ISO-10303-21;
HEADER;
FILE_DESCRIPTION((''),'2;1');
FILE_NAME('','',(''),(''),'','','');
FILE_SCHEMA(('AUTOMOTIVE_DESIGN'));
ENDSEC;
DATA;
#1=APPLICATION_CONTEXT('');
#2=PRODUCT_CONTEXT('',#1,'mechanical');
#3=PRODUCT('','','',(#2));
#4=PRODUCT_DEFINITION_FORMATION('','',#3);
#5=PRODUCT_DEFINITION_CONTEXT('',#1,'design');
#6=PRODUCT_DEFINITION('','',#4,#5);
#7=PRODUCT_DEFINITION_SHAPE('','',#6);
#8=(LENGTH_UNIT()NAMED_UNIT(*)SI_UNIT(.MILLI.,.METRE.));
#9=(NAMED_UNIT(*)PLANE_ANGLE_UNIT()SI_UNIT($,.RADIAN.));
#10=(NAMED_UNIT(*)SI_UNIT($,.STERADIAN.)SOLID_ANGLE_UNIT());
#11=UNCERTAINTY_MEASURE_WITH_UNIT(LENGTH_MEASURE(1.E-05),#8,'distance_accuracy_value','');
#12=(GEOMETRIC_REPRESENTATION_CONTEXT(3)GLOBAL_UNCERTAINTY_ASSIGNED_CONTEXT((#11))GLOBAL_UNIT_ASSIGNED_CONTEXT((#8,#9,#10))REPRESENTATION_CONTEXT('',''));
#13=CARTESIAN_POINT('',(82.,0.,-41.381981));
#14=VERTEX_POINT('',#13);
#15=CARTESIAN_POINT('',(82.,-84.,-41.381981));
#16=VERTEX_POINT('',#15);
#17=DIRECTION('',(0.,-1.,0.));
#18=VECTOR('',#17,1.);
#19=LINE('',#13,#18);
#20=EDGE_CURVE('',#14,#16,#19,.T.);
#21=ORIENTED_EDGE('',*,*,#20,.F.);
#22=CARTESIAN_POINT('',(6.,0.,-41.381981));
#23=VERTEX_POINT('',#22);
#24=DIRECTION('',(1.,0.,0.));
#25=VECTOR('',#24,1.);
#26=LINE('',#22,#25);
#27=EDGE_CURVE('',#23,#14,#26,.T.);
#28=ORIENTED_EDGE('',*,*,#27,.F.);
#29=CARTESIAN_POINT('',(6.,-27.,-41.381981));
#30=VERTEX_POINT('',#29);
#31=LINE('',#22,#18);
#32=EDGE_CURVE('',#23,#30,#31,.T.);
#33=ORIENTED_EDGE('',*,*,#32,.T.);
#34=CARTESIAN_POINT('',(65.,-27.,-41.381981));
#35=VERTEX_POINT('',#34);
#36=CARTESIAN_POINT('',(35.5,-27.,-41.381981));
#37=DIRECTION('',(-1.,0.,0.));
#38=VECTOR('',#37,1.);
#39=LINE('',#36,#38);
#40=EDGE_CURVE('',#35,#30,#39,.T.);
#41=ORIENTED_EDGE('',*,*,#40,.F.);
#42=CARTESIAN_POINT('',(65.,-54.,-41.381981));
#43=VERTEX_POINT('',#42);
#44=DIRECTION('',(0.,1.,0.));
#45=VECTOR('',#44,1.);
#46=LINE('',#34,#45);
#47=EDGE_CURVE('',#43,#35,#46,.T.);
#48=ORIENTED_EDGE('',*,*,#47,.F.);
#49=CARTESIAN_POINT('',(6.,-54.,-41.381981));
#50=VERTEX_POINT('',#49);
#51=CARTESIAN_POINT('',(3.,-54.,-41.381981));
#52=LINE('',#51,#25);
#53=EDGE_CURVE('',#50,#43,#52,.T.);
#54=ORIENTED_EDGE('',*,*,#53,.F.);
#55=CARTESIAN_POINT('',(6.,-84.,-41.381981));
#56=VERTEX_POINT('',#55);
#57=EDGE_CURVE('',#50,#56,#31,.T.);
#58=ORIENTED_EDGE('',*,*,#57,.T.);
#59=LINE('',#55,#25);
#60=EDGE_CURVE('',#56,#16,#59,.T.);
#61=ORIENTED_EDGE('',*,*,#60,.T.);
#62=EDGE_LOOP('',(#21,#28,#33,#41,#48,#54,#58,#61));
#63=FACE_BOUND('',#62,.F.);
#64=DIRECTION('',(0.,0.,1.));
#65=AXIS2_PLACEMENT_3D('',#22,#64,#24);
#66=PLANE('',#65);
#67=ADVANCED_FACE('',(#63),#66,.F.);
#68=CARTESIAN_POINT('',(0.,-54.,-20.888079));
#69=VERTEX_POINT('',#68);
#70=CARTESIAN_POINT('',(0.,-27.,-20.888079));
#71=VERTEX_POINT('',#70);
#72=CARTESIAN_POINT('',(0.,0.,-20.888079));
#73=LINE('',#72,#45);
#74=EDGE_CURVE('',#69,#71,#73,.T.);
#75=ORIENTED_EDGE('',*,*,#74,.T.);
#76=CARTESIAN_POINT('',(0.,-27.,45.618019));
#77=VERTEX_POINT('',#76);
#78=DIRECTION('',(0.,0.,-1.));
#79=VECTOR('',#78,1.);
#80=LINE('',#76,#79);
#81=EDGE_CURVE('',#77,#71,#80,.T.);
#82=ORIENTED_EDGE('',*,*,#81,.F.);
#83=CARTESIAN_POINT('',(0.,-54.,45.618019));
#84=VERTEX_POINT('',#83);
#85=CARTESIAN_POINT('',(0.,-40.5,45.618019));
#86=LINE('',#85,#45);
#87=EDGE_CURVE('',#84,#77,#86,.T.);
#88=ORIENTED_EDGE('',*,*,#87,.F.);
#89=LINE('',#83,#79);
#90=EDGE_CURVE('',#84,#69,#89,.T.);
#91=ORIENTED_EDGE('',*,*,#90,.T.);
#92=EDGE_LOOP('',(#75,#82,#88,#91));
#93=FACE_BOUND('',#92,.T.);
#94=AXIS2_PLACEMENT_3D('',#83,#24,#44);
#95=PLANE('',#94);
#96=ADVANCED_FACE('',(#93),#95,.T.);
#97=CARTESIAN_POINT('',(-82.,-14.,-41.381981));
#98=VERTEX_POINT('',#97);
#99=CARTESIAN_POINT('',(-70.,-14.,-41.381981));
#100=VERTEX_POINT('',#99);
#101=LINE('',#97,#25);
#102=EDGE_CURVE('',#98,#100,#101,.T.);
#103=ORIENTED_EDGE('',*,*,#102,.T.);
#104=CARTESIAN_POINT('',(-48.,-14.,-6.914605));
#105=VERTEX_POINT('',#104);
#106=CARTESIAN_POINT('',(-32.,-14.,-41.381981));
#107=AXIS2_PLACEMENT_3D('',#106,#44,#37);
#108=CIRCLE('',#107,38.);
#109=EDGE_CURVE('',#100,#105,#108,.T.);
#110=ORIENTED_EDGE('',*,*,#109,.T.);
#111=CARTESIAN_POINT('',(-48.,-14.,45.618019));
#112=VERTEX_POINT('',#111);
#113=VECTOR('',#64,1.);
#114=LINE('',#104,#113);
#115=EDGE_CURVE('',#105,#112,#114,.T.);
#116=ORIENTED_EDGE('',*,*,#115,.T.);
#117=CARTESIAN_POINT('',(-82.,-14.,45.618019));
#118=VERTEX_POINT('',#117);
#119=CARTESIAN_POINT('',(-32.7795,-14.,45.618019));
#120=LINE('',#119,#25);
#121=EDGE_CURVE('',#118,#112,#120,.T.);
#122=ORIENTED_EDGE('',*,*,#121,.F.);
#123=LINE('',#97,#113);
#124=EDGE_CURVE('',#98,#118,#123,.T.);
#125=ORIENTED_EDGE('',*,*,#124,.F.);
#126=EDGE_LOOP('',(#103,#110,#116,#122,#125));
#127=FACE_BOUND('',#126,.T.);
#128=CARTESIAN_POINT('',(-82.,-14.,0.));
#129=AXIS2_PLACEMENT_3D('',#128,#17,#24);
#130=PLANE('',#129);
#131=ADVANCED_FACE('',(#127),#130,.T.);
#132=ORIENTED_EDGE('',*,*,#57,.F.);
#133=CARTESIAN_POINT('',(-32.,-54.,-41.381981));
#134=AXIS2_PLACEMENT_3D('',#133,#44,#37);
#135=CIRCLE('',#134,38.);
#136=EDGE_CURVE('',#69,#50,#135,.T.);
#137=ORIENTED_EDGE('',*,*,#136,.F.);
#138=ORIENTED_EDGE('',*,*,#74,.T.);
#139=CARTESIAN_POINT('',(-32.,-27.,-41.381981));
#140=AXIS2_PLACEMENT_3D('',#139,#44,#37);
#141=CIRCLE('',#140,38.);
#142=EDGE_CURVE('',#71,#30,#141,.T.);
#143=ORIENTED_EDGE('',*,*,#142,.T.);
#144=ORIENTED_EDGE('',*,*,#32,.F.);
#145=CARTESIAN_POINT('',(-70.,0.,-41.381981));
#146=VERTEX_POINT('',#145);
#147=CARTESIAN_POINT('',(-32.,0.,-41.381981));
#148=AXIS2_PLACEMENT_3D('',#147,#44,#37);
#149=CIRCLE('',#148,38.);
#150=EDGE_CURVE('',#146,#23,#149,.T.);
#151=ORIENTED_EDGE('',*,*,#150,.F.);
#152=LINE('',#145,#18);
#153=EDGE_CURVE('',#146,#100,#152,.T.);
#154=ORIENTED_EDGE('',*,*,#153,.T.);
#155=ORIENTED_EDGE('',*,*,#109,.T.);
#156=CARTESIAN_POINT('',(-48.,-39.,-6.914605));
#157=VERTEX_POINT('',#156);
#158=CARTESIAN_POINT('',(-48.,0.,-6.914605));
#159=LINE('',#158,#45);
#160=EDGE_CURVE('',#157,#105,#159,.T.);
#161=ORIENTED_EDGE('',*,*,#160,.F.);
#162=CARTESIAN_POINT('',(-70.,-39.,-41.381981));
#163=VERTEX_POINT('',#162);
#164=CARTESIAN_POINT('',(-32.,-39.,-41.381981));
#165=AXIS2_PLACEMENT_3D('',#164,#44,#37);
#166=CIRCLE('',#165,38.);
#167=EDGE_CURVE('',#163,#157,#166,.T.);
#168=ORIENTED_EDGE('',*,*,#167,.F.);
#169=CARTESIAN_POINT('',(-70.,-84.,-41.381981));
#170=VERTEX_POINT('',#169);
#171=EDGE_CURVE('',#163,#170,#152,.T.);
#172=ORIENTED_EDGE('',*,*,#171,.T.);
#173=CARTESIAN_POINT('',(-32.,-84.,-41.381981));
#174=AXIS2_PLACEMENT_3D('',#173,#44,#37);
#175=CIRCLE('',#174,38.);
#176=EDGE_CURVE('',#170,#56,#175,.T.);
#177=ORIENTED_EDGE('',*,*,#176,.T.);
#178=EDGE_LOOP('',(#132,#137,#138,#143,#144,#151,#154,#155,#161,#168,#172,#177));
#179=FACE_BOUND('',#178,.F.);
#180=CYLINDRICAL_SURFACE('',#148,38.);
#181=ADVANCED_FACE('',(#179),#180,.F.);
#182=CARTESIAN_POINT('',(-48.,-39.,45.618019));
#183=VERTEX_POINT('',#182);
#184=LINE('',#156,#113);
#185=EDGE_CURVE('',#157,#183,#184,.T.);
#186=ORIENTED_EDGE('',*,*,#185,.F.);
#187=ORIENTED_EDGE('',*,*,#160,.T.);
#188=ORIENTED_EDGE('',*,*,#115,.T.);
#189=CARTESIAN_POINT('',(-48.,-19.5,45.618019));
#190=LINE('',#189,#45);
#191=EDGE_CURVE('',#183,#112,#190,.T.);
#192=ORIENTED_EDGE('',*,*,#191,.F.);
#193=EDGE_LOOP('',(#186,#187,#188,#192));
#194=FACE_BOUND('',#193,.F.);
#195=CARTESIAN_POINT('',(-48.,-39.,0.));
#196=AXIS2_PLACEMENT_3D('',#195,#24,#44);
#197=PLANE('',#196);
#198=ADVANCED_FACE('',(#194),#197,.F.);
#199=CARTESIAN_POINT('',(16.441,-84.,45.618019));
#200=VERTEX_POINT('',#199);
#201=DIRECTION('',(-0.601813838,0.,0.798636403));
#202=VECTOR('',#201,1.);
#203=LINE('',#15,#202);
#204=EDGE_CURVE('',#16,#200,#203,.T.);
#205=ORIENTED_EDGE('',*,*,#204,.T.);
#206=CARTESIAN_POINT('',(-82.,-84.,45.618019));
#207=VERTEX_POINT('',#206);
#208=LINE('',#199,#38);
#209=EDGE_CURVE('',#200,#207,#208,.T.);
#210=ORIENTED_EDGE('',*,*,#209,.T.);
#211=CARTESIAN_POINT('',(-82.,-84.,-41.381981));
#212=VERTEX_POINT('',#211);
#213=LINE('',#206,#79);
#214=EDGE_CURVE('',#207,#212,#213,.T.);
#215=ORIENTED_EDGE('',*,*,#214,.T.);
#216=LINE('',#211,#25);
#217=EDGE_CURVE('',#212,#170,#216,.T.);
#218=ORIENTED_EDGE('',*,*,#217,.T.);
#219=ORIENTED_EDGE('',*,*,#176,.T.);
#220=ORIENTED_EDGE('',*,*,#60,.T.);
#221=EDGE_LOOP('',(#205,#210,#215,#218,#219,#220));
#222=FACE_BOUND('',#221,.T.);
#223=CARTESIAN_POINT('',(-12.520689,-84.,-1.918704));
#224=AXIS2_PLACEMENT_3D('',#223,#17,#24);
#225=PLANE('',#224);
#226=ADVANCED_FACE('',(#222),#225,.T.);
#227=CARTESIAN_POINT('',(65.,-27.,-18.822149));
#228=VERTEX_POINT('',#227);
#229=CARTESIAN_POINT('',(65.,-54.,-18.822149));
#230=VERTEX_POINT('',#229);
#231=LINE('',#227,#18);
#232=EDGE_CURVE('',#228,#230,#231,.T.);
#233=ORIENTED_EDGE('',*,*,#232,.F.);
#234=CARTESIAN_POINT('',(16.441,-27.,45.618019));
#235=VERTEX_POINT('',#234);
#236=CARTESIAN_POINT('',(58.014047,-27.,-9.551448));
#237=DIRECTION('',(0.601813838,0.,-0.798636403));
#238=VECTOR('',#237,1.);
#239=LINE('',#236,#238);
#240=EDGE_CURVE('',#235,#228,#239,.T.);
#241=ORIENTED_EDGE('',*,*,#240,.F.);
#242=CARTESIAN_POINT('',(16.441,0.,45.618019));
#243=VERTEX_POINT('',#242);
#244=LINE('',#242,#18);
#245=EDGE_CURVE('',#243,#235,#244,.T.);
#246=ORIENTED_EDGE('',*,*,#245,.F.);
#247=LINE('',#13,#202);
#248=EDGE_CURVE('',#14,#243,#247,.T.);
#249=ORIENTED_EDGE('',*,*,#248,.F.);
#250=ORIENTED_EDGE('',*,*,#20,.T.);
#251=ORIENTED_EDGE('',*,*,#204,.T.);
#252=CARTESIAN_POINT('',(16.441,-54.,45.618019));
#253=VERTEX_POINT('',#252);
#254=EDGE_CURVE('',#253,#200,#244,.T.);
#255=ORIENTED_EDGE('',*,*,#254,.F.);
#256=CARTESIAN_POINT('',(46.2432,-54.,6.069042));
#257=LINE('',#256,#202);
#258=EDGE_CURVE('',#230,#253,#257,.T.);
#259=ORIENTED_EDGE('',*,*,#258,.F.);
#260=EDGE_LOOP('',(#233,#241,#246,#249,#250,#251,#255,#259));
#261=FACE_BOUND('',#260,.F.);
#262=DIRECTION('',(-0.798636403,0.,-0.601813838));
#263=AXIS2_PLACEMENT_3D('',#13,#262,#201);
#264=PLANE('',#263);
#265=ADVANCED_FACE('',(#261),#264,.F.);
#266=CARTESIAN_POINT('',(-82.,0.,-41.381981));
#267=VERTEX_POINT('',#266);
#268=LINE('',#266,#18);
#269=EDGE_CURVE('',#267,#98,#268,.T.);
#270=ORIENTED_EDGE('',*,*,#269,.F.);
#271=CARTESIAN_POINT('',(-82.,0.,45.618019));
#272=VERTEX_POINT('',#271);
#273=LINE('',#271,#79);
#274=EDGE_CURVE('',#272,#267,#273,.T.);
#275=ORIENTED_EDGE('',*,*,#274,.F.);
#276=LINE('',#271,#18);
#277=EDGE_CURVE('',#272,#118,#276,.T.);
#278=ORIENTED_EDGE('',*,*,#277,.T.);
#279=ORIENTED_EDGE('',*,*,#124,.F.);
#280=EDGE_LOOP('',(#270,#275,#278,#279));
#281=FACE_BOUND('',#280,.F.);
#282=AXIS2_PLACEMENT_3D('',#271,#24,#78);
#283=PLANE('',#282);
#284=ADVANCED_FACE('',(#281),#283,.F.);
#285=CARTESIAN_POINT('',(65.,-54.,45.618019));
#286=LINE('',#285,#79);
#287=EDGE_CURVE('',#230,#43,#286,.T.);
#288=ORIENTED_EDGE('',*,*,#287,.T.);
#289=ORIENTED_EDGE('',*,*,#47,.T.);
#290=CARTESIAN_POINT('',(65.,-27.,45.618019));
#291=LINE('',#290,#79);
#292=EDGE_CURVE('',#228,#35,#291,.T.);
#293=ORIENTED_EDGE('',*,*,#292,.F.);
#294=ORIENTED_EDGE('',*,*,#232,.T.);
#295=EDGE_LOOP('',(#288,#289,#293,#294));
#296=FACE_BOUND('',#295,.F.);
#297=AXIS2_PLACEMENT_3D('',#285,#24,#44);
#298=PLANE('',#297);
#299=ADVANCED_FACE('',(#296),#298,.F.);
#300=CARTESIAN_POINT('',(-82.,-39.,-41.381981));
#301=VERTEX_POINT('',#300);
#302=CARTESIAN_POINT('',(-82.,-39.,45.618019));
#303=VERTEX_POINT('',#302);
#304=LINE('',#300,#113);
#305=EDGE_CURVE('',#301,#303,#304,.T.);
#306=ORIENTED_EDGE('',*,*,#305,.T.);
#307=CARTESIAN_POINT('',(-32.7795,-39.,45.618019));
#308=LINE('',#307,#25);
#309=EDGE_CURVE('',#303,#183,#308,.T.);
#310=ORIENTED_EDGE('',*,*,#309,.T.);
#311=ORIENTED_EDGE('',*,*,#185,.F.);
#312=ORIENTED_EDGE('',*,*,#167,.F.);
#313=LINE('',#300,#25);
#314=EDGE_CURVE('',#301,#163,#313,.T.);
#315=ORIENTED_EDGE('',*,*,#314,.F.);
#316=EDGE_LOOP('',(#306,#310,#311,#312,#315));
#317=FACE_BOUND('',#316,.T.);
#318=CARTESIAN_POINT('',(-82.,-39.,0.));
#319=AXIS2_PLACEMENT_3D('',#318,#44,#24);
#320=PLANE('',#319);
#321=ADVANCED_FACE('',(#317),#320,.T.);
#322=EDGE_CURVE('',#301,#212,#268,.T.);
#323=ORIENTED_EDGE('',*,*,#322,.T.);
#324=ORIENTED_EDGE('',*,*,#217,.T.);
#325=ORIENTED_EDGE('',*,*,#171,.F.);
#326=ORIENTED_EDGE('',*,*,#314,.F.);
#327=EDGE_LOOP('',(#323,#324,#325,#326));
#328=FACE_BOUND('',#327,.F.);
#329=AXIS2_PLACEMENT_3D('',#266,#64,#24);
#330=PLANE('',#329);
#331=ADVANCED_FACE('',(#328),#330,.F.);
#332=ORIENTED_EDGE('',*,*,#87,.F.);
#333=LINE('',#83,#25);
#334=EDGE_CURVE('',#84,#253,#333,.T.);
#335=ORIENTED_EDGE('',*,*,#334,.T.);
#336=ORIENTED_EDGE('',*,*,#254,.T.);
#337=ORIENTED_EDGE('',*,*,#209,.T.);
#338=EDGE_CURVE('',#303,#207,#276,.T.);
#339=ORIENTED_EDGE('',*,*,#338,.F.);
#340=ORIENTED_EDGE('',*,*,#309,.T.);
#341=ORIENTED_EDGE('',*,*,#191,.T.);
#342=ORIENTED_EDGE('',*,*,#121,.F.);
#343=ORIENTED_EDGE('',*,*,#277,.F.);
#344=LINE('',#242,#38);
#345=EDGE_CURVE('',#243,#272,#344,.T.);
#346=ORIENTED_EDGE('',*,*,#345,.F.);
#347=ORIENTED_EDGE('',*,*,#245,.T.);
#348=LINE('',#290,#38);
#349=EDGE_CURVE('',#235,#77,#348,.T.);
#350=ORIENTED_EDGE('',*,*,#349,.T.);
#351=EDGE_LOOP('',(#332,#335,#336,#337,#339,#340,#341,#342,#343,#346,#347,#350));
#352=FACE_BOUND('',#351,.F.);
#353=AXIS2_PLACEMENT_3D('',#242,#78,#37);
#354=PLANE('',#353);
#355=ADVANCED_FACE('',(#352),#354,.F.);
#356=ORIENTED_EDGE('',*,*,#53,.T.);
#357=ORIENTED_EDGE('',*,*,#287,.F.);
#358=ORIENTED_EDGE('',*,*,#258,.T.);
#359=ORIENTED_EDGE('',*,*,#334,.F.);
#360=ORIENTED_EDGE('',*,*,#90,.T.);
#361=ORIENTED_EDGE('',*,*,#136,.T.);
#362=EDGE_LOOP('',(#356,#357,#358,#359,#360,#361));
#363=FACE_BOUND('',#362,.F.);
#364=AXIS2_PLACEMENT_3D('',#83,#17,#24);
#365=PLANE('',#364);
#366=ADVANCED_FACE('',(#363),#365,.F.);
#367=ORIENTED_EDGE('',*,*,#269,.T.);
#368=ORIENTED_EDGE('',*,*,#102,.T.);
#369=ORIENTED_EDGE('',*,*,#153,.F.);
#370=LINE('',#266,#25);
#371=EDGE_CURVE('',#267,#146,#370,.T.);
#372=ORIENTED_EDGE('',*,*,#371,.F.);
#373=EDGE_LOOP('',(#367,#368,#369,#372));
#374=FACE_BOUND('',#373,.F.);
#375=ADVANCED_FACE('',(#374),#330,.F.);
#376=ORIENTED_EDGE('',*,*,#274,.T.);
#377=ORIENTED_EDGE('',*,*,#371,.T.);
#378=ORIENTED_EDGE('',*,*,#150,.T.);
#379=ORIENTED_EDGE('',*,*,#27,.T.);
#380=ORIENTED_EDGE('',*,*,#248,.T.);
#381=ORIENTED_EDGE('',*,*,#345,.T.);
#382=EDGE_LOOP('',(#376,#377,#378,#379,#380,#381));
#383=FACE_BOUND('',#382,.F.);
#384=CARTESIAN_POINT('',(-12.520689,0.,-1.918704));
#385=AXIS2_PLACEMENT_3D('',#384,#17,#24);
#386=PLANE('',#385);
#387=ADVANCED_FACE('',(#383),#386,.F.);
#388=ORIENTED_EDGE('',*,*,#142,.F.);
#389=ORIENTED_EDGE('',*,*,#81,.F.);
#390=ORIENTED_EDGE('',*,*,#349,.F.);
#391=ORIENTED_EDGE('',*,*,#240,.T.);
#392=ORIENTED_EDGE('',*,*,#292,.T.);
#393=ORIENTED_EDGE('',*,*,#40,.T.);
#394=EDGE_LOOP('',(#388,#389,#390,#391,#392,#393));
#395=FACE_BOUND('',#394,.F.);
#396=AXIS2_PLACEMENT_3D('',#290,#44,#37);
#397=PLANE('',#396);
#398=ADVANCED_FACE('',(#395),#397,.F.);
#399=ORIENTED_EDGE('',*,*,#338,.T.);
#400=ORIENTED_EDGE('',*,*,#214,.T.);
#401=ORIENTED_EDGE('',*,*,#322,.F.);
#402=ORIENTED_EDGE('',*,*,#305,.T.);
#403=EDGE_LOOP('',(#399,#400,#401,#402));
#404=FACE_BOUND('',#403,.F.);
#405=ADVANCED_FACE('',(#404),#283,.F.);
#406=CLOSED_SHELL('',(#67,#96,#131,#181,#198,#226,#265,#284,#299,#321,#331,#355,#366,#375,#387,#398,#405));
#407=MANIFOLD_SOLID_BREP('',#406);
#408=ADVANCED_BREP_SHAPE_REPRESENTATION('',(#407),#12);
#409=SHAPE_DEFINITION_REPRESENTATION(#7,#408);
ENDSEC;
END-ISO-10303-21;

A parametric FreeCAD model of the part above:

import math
import FreeCAD as App
import Part
import Sketcher

V = App.Vector
Q = App.Units.Quantity


def add_polygon(sketch, points):
    """Adds a closed chain of lines whose ends are joined by coincident constraints."""
    first, n = sketch.GeometryCount, len(points)
    for a, b in zip(points, points[1:] + points[:1]):
        sketch.addGeometry(Part.LineSegment(App.Vector(*a, 0), App.Vector(*b, 0)), False)
    for i in range(n):
        sketch.addConstraint(Sketcher.Constraint("Coincident", first + i, 2, first + (i + 1) % n, 1))

doc = App.newDocument("Part")
body = doc.addObject("PartDesign::Body", "Body")

sketch1 = body.newObject("Sketcher::SketchObject", "Sketch")
sketch1.AttachmentSupport = (doc.getObject("XZ_Plane"), [""])
sketch1.MapMode = "FlatFace"
sketch1.addGeometry(Part.LineSegment(V(-82, 45.618019, 0), V(-82, -41.381981, 0)), False)
sketch1.addGeometry(Part.LineSegment(V(-82, -41.381981, 0), V(-70, -41.381981, 0)), False)
sketch1.addGeometry(Part.ArcOfCircle(Part.Circle(V(-32, -41.381981, 0), V(0, 0, 1), 38), math.radians(0), math.radians(180)), False)
sketch1.addGeometry(Part.LineSegment(V(6, -41.381981, 0), V(82, -41.381981, 0)), False)
sketch1.addGeometry(Part.LineSegment(V(82, -41.381981, 0), V(16.441, 45.618019, 0)), False)
sketch1.addGeometry(Part.LineSegment(V(16.441, 45.618019, 0), V(-82, 45.618019, 0)), False)
sketch1.addConstraint(Sketcher.Constraint("Coincident", 0, 2, 1, 1))
sketch1.addConstraint(Sketcher.Constraint("Coincident", 1, 2, 2, 2))
sketch1.addConstraint(Sketcher.Constraint("Coincident", 2, 1, 3, 1))
sketch1.addConstraint(Sketcher.Constraint("Coincident", 3, 2, 4, 1))
sketch1.addConstraint(Sketcher.Constraint("Coincident", 4, 2, 5, 1))
sketch1.addConstraint(Sketcher.Constraint("Coincident", 5, 2, 0, 1))
sketch1.addConstraint(Sketcher.Constraint("Vertical", 0))
sketch1.addConstraint(Sketcher.Constraint("Horizontal", 1))
sketch1.addConstraint(Sketcher.Constraint("Horizontal", 3))
sketch1.addConstraint(Sketcher.Constraint("Horizontal", 5))
sketch1.addConstraint(Sketcher.Constraint("Symmetric", 0, 2, 3, 2, -2))
sketch1.addConstraint(Sketcher.Constraint("Horizontal", 2, 3, 0, 2))
sketch1.addConstraint(Sketcher.Constraint("Radius", 2, Q("38 mm")))
sketch1.addConstraint(Sketcher.Constraint("DistanceX", 1, 1, 1, 2, Q("12 mm")))
sketch1.addConstraint(Sketcher.Constraint("DistanceX", 3, 1, 3, 2, Q("76 mm")))
sketch1.addConstraint(Sketcher.Constraint("DistanceY", 0, 2, 0, 1, Q("87 mm")))
sketch1.addConstraint(Sketcher.Constraint("DistanceX", 5, 2, 5, 1, Q("98.441 mm")))
sketch1.addConstraint(Sketcher.Constraint("DistanceY", 2, 3, -1, 1, Q("41.381981 mm")))
pad1 = body.newObject("PartDesign::Pad", "Pad")
pad1.Profile = sketch1
pad1.Length = 84

sketch2 = body.newObject("Sketcher::SketchObject", "Sketch001")
sketch2.AttachmentSupport = (doc.getObject("XY_Plane"), [""])
sketch2.MapMode = "FlatFace"
add_polygon(sketch2, [(-82, -14), (-82, -39), (-48, -39), (-48, -14)])
sketch2.addConstraint(Sketcher.Constraint("Vertical", 0))
sketch2.addConstraint(Sketcher.Constraint("Horizontal", 1))
sketch2.addConstraint(Sketcher.Constraint("Vertical", 2))
sketch2.addConstraint(Sketcher.Constraint("Horizontal", 3))
sketch2.addConstraint(Sketcher.Constraint("DistanceX", 1, 1, 1, 2, Q("34 mm")))
sketch2.addConstraint(Sketcher.Constraint("DistanceY", 0, 2, 0, 1, Q("25 mm")))
sketch2.addConstraint(Sketcher.Constraint("DistanceX", 0, 2, -1, 1, Q("82 mm")))
sketch2.addConstraint(Sketcher.Constraint("DistanceY", 0, 2, -1, 1, Q("39 mm")))
pocket1 = body.newObject("PartDesign::Pocket", "Pocket")
pocket1.Profile = sketch2
pocket1.Type = "ThroughAll"
pocket1.Midplane = True

sketch3 = body.newObject("Sketcher::SketchObject", "Sketch002")
sketch3.AttachmentSupport = (doc.getObject("XY_Plane"), [""])
sketch3.MapMode = "FlatFace"
sketch3.AttachmentOffset = App.Placement(V(0, 0, 45.618019), App.Rotation())
add_polygon(sketch3, [(65, -54), (65, -27), (0, -27), (0, -54)])
sketch3.addConstraint(Sketcher.Constraint("Vertical", 0))
sketch3.addConstraint(Sketcher.Constraint("Horizontal", 1))
sketch3.addConstraint(Sketcher.Constraint("Vertical", 2))
sketch3.addConstraint(Sketcher.Constraint("Horizontal", 3))
sketch3.addConstraint(Sketcher.Constraint("PointOnObject", 1, 2, -2))
sketch3.addConstraint(Sketcher.Constraint("DistanceX", 1, 2, 1, 1, Q("65 mm")))
sketch3.addConstraint(Sketcher.Constraint("DistanceY", 0, 1, 0, 2, Q("27 mm")))
sketch3.addConstraint(Sketcher.Constraint("DistanceY", 0, 2, -1, 1, Q("27 mm")))
pocket2 = body.newObject("PartDesign::Pocket", "Pocket001")
pocket2.Profile = sketch3
pocket2.Length = 360.4

doc.recompute()
